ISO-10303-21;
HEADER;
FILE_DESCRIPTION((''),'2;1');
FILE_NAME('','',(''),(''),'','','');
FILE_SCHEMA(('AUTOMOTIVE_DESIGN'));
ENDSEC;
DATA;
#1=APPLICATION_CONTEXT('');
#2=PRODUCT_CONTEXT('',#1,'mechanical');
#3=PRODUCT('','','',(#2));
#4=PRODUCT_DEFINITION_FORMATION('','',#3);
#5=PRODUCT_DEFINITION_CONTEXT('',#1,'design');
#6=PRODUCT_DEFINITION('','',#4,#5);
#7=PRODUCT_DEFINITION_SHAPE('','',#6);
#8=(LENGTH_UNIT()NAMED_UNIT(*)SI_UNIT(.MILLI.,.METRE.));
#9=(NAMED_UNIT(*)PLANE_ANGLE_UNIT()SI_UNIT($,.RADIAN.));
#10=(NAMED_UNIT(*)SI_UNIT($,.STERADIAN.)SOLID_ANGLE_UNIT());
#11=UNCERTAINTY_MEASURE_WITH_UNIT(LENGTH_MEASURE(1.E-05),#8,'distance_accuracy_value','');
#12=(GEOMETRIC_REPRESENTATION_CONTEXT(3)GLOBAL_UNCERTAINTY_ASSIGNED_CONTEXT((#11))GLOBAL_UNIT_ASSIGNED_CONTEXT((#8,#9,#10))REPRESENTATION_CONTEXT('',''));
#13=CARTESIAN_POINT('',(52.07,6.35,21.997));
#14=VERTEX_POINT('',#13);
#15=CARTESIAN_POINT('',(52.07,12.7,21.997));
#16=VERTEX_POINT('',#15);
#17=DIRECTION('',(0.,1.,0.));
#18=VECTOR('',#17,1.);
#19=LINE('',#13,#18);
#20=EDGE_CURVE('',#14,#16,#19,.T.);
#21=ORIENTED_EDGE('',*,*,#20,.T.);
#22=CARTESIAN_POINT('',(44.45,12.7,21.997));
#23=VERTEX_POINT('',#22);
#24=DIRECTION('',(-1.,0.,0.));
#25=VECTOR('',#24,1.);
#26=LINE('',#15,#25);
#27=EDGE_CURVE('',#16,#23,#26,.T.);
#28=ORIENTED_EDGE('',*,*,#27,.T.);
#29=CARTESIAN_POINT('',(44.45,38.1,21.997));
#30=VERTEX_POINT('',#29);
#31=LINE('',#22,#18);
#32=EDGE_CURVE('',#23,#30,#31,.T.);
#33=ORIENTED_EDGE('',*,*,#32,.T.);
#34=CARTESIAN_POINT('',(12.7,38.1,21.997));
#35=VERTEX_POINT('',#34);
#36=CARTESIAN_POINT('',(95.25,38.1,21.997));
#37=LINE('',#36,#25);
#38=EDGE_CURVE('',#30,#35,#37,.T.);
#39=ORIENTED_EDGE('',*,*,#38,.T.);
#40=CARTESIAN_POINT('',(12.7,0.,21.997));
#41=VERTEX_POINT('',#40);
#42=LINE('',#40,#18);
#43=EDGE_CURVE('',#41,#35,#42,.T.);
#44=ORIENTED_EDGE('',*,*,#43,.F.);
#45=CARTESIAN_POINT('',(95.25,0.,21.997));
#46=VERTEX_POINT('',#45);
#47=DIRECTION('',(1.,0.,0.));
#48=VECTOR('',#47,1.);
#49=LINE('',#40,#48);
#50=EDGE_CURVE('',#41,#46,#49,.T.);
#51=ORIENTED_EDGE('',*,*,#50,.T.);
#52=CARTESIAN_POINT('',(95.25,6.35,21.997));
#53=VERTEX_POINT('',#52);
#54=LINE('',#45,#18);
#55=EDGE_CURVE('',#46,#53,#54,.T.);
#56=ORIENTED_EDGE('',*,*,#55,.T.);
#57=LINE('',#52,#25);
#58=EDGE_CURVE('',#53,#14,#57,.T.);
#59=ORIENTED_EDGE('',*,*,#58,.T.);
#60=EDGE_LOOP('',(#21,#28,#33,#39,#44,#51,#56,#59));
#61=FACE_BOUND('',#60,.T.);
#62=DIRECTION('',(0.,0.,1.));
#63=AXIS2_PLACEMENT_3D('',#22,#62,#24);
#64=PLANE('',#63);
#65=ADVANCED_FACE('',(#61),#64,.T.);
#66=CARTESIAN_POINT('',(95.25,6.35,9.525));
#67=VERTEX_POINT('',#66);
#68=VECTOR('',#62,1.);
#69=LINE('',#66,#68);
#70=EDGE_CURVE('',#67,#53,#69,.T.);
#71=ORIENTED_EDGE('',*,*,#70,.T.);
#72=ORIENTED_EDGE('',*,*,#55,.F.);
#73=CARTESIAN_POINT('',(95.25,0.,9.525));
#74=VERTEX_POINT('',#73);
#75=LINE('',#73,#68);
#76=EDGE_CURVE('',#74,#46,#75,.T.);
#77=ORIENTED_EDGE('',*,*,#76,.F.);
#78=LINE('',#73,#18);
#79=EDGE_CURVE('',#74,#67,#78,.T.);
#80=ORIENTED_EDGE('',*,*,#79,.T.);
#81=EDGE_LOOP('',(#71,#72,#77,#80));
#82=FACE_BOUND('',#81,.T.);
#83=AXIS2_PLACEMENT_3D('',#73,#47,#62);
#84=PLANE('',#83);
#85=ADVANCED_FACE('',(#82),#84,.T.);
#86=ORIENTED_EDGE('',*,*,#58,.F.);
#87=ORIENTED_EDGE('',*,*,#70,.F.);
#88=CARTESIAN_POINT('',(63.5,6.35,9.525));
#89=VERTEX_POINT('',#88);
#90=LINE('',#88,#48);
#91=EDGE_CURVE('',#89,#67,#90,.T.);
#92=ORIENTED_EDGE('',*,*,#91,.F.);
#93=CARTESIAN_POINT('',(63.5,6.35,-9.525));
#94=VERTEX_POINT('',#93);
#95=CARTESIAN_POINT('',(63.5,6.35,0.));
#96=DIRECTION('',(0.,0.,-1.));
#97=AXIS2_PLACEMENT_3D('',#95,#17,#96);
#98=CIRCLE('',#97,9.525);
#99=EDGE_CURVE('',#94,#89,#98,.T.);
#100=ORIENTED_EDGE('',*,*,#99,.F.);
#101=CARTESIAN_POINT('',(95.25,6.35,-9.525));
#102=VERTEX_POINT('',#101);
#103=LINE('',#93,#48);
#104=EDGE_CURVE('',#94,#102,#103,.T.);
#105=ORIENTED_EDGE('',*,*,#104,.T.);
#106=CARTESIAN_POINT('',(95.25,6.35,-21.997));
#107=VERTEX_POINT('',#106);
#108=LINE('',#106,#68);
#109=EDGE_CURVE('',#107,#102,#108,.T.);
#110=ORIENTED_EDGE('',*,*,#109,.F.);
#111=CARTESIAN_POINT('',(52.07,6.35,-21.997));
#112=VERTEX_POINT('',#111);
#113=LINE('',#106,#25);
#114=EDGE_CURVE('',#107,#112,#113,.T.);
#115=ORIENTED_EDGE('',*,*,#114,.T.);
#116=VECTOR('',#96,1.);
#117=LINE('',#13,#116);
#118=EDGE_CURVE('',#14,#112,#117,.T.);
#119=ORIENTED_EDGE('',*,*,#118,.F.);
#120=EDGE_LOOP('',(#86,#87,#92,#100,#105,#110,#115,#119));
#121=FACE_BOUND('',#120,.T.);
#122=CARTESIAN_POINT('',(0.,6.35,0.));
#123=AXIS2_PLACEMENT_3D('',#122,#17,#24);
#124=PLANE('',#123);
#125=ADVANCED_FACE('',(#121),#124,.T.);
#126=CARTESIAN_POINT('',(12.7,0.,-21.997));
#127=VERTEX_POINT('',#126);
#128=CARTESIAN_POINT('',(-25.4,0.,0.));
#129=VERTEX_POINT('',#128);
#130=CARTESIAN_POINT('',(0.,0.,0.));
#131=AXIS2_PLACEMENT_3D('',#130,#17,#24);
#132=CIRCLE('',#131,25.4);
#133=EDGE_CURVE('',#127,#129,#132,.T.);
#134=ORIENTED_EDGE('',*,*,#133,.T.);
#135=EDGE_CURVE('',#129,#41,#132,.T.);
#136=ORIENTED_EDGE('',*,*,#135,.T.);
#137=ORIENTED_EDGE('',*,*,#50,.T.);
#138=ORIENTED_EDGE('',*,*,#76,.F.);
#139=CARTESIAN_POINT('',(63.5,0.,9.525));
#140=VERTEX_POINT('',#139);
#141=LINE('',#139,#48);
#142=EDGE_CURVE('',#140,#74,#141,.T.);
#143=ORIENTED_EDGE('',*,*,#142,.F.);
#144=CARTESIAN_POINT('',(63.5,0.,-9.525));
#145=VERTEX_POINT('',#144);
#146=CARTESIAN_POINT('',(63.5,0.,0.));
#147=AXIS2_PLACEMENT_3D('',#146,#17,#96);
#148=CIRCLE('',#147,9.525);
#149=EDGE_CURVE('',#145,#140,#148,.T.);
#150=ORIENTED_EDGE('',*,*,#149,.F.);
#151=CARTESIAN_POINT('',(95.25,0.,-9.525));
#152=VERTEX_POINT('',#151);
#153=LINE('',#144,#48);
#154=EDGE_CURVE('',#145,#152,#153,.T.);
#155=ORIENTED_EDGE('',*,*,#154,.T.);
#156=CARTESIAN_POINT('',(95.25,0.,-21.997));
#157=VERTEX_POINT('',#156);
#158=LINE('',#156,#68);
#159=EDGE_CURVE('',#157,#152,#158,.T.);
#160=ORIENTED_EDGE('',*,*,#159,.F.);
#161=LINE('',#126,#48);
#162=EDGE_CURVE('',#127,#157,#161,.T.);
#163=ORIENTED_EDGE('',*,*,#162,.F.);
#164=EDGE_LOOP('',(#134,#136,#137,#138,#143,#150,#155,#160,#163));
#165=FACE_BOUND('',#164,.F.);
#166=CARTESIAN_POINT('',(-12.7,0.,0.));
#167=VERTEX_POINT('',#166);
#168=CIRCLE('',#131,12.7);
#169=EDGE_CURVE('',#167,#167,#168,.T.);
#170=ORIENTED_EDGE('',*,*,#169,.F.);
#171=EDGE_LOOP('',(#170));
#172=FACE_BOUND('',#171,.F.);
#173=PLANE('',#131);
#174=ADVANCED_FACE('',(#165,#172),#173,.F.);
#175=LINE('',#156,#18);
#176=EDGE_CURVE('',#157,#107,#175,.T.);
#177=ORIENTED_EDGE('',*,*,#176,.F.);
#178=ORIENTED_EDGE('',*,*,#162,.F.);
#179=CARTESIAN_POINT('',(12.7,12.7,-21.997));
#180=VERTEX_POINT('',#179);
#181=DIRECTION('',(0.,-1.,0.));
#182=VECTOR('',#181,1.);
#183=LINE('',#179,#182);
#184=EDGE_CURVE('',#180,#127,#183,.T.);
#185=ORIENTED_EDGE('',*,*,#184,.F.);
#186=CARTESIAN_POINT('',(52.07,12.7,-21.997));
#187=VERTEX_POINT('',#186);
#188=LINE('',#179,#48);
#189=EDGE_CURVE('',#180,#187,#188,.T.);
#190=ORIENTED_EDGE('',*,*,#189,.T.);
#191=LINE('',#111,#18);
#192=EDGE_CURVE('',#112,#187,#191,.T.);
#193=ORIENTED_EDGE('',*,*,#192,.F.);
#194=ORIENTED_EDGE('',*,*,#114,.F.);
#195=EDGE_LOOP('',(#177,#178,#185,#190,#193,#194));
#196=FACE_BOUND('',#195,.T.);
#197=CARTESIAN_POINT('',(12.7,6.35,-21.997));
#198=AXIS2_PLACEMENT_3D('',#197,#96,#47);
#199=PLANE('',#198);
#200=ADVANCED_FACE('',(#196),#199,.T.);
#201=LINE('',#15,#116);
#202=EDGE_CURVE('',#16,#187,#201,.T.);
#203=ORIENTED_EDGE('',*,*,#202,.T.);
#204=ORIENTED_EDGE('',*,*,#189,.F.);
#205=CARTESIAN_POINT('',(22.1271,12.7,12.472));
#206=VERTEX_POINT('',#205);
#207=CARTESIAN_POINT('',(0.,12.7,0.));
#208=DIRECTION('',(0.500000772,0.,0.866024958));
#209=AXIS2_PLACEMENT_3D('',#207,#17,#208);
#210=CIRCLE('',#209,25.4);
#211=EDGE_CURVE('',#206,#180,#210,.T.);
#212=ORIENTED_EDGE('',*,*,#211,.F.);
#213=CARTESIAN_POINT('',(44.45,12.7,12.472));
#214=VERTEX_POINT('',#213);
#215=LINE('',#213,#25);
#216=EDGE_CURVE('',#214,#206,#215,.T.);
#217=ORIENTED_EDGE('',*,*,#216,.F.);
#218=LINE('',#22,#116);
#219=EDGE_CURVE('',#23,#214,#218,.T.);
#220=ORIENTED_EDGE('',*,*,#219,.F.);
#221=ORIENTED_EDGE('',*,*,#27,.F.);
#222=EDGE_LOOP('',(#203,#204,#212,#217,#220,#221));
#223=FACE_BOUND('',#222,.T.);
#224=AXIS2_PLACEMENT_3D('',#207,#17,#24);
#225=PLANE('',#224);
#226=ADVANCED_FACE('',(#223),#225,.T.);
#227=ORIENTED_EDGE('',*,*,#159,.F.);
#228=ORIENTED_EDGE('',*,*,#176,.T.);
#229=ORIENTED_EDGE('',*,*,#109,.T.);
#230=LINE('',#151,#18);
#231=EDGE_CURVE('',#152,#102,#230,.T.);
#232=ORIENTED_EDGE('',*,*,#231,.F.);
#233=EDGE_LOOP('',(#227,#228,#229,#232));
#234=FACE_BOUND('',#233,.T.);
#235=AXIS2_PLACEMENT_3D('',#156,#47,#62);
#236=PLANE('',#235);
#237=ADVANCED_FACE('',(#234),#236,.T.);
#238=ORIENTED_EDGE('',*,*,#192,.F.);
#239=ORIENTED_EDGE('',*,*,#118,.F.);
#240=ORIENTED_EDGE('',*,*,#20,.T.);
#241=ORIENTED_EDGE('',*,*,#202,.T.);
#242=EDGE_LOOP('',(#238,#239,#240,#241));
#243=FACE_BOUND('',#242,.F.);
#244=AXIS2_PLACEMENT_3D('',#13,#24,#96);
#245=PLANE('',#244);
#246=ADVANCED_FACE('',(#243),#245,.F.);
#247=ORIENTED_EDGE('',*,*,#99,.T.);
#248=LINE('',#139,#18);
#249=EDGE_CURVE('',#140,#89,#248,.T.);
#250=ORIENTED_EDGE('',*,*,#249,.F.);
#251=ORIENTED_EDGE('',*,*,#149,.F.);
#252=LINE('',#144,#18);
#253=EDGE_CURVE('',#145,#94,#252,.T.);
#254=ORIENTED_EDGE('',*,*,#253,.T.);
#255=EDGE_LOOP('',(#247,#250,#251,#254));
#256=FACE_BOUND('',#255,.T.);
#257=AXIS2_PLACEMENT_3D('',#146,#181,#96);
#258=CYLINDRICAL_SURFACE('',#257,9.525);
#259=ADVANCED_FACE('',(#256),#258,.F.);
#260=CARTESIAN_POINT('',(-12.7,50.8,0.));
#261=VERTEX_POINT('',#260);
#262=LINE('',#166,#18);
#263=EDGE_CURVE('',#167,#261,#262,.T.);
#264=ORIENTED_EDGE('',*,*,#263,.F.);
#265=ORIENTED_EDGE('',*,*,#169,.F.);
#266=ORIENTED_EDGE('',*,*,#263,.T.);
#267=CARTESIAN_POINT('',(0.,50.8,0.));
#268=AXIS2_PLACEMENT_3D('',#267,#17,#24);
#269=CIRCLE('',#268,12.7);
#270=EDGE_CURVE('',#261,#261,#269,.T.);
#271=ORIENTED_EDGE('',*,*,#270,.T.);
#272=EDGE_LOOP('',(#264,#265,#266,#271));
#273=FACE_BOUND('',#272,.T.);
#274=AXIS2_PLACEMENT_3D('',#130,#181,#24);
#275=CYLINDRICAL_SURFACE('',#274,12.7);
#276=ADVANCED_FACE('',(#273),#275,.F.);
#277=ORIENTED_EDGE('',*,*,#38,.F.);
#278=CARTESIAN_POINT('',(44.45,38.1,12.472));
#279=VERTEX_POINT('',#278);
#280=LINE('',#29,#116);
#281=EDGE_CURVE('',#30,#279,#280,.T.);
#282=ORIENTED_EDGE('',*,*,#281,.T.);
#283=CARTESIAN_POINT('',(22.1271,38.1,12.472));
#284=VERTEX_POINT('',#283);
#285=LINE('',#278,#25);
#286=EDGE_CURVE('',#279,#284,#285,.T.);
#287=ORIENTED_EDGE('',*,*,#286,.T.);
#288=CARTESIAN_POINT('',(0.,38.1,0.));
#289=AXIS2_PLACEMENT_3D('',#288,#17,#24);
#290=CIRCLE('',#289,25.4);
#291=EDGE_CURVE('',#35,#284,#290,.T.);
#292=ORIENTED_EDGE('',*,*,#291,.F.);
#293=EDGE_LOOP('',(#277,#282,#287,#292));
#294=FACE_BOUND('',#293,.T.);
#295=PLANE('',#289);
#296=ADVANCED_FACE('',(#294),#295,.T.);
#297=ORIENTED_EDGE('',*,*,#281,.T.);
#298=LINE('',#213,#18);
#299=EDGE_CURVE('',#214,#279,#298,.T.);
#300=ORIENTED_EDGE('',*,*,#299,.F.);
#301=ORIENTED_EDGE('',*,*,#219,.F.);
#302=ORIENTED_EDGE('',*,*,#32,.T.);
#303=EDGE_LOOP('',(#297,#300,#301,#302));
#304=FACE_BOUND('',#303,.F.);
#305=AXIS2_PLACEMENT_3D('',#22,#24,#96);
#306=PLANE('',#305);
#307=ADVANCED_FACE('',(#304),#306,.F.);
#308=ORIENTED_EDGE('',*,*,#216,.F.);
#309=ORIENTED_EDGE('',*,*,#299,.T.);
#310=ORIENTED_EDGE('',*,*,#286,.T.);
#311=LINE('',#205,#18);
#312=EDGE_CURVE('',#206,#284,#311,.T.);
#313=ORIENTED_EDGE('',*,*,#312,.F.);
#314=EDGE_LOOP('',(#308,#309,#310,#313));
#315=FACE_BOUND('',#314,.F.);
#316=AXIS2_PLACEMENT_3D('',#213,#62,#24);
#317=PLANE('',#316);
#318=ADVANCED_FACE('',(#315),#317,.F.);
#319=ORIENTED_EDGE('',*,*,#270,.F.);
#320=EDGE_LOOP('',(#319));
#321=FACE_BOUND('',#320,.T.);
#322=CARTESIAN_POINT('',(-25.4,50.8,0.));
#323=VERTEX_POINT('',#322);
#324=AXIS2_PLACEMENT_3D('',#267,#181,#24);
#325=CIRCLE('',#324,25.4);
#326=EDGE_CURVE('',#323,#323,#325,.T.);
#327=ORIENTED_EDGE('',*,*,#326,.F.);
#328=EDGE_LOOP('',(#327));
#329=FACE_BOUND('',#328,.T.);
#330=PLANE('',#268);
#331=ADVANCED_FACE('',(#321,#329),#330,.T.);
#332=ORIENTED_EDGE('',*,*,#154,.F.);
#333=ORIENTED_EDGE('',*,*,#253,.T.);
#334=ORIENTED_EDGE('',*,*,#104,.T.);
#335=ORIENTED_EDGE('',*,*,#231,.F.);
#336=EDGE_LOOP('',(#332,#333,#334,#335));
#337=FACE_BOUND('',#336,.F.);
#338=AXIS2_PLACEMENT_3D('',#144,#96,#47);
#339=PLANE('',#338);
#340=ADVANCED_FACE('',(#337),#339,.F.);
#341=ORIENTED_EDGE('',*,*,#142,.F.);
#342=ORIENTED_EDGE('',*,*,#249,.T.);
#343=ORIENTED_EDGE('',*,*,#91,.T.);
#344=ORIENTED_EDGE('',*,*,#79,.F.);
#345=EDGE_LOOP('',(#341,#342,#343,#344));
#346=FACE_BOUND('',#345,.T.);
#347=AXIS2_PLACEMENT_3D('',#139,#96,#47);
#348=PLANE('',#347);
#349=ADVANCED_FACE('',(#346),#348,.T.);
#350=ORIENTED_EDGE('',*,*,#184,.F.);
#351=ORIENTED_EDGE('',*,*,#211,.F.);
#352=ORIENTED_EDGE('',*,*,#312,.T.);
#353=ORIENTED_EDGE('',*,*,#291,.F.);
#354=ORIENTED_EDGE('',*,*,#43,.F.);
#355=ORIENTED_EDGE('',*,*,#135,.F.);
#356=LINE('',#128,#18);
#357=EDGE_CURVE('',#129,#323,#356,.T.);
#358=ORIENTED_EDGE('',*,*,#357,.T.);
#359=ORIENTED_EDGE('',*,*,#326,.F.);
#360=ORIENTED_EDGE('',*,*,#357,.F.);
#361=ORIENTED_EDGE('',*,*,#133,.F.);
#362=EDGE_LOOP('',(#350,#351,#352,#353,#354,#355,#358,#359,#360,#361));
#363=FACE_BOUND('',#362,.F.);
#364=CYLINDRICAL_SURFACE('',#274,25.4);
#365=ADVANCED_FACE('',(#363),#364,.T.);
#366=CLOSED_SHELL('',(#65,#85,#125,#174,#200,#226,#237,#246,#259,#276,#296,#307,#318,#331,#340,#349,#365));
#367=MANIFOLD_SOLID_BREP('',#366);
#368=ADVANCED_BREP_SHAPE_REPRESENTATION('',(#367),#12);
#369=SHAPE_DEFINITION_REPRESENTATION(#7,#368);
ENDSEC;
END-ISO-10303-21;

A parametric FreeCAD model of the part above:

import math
import FreeCAD as App
import Part
import Sketcher
from FreeCAD import Vector
Q = App.Units.Quantity

doc = App.newDocument("Part")
body = doc.addObject("PartDesign::Body", "Body")

# Sketch on XZ plane
sketch1 = body.newObject("Sketcher::SketchObject", "Sketch")
sketch1.AttachmentSupport = (doc.getObject("XZ_Plane"), [""])
sketch1.MapMode = "FlatFace"
sketch1.addGeometry([
    Part.Circle(Vector(0, 0, 0), Vector(0, 0, 1), 25),
    Part.Circle(Vector(0, 0, 0), Vector(0, 0, 1), 13),
], False)
sketch1.addConstraint([
    Sketcher.Constraint("Coincident", 0, 3, -1, 1),
    Sketcher.Constraint("Coincident", 1, 3, -1, 1),
    Sketcher.Constraint("Diameter", 0, Q("2 in")),
    Sketcher.Constraint("Diameter", 1, Q("1 in")),
])
pad1 = body.newObject("PartDesign::Pad", "Pad")
pad1.Profile = sketch1
pad1.Length = Q("2 in")
pad1.Reversed = True

# Sketch on XZ plane
sketch2 = body.newObject("Sketcher::SketchObject", "Sketch001")
sketch2.AttachmentSupport = (doc.getObject("XZ_Plane"), [""])
sketch2.MapMode = "FlatFace"
sketch2.addGeometry([
    Part.LineSegment(Vector(13, 22, 0), Vector(95, 22, 0)),  # 0
    Part.LineSegment(Vector(95, 22, 0), Vector(95, 10, 0)),  # 1
    Part.LineSegment(Vector(95, 10, 0), Vector(64, 10, 0)),  # 2
    Part.ArcOfCircle(Part.Circle(Vector(64, 0, 0), Vector(0, 0, 1), 10), math.radians(90), math.radians(270)),  # 3
    Part.LineSegment(Vector(64, -10, 0), Vector(95, -10, 0)),  # 4
    Part.LineSegment(Vector(95, -10, 0), Vector(95, -22, 0)),  # 5
    Part.LineSegment(Vector(95, -22, 0), Vector(13, -22, 0)),  # 6
    Part.ArcOfCircle(Part.Circle(Vector(0, 0, 0), Vector(0, 0, 1), 25), math.radians(-60), math.radians(60)),  # 7
], False)
sketch2.addConstraint([
    Sketcher.Constraint("Coincident", 0, 2, 1, 1),
    Sketcher.Constraint("Coincident", 1, 2, 2, 1),
    Sketcher.Constraint("Tangent", 2, 2, 3, 1),
    Sketcher.Constraint("Tangent", 3, 2, 4, 1),
    Sketcher.Constraint("Coincident", 4, 2, 5, 1),
    Sketcher.Constraint("Coincident", 5, 2, 6, 1),
    Sketcher.Constraint("Coincident", 6, 2, 7, 1),
    Sketcher.Constraint("Coincident", 7, 2, 0, 1),
    Sketcher.Constraint("Horizontal", 0),
    Sketcher.Constraint("Vertical", 1),
    Sketcher.Constraint("Horizontal", 2),
    Sketcher.Constraint("Horizontal", 4),
    Sketcher.Constraint("Vertical", 5),
    Sketcher.Constraint("Horizontal", 6),
    Sketcher.Constraint("Coincident", 7, 3, -1, 1),
    Sketcher.Constraint("Symmetric", 1, 2, 4, 2, -1),
    Sketcher.Constraint("Vertical", 6, 2, 7, 2),
    Sketcher.Constraint("Radius", 7, Q("1 in")),
    Sketcher.Constraint("Radius", 3, Q("0.375 in")),
    Sketcher.Constraint("DistanceX", 0, 1, 0, 2, Q("3.25 in")),
    Sketcher.Constraint("DistanceX", 2, 2, 2, 1, Q("1.25 in")),
    Sketcher.Constraint("DistanceX", -1, 1, 6, 2, Q("0.5 in")),
])
pad2 = body.newObject("PartDesign::Pad", "Pad001")
pad2.Profile = sketch2
pad2.Length = Q("0.25 in")
pad2.Reversed = True

# Sketch on XZ plane
sketch3 = body.newObject("Sketcher::SketchObject", "Sketch002")
sketch3.AttachmentSupport = (doc.getObject("XZ_Plane"), [""])
sketch3.MapMode = "FlatFace"
sketch3.AttachmentOffset = App.Placement(Vector(0, 0, -0.25 * 25.4), App.Rotation())
sketch3.addGeometry([
    Part.LineSegment(Vector(13, 22, 0), Vector(52, 22, 0)),
    Part.LineSegment(Vector(52, 22, 0), Vector(52, -22, 0)),
    Part.LineSegment(Vector(52, -22, 0), Vector(13, -22, 0)),
    Part.ArcOfCircle(Part.Circle(Vector(0, 0, 0), Vector(0, 0, 1), 25), math.radians(-60), math.radians(60)),
], False)
sketch3.addConstraint([
    Sketcher.Constraint("Coincident", 0, 2, 1, 1),
    Sketcher.Constraint("Coincident", 1, 2, 2, 1),
    Sketcher.Constraint("Coincident", 2, 2, 3, 1),
    Sketcher.Constraint("Coincident", 3, 2, 0, 1),
    Sketcher.Constraint("Horizontal", 0),
    Sketcher.Constraint("Vertical", 1),
    Sketcher.Constraint("Horizontal", 2),
    Sketcher.Constraint("Coincident", 3, 3, -1, 1),
    Sketcher.Constraint("Vertical", 2, 2, 3, 2),
    Sketcher.Constraint("Radius", 3, Q("1 in")),
    Sketcher.Constraint("DistanceX", -1, 1, 2, 2, Q("0.5 in")),
    Sketcher.Constraint("DistanceX", 0, 1, 0, 2, Q("1.55 in")),
])
pad3 = body.newObject("PartDesign::Pad", "Pad002")
pad3.Profile = sketch3
pad3.Length = Q("0.25 in")
pad3.Reversed = True

# Sketch on XZ plane
sketch4 = body.newObject("Sketcher::SketchObject", "Sketch003")
sketch4.AttachmentSupport = (doc.getObject("XZ_Plane"), [""])
sketch4.MapMode = "FlatFace"
sketch4.AttachmentOffset = App.Placement(Vector(0, 0, -0.5 * 25.4), App.Rotation())
sketch4.addGeometry([
    Part.ArcOfCircle(Part.Circle(Vector(0, 0, 0), Vector(0, 0, 1), 25), math.radians(29), math.radians(60)),
    Part.LineSegment(Vector(13, 22, 0), Vector(44, 22, 0)),
    Part.LineSegment(Vector(44, 22, 0), Vector(44, 12, 0)),
    Part.LineSegment(Vector(44, 12, 0), Vector(22, 12, 0)),
], False)
sketch4.addConstraint([
    Sketcher.Constraint("Coincident", 0, 2, 1, 1),
    Sketcher.Constraint("Coincident", 1, 2, 2, 1),
    Sketcher.Constraint("Coincident", 2, 2, 3, 1),
    Sketcher.Constraint("Coincident", 3, 2, 0, 1),
    Sketcher.Constraint("Horizontal", 1),
    Sketcher.Constraint("Vertical", 2),
    Sketcher.Constraint("Horizontal", 3),
    Sketcher.Constraint("Coincident", 0, 3, -1, 1),
    Sketcher.Constraint("Radius", 0, Q("1 in")),
    Sketcher.Constraint("DistanceX", 1, 1, 1, 2, Q("1.25 in")),
    Sketcher.Constraint("DistanceX", -1, 1, 0, 2, Q("0.5 in")),
    Sketcher.Constraint("DistanceY", 2, 2, 2, 1, Q("0.375 in")),
])
pad4 = body.newObject("PartDesign::Pad", "Pad003")
pad4.Profile = sketch4
pad4.Length = Q("1 in")
pad4.Reversed = True

doc.recompute()
